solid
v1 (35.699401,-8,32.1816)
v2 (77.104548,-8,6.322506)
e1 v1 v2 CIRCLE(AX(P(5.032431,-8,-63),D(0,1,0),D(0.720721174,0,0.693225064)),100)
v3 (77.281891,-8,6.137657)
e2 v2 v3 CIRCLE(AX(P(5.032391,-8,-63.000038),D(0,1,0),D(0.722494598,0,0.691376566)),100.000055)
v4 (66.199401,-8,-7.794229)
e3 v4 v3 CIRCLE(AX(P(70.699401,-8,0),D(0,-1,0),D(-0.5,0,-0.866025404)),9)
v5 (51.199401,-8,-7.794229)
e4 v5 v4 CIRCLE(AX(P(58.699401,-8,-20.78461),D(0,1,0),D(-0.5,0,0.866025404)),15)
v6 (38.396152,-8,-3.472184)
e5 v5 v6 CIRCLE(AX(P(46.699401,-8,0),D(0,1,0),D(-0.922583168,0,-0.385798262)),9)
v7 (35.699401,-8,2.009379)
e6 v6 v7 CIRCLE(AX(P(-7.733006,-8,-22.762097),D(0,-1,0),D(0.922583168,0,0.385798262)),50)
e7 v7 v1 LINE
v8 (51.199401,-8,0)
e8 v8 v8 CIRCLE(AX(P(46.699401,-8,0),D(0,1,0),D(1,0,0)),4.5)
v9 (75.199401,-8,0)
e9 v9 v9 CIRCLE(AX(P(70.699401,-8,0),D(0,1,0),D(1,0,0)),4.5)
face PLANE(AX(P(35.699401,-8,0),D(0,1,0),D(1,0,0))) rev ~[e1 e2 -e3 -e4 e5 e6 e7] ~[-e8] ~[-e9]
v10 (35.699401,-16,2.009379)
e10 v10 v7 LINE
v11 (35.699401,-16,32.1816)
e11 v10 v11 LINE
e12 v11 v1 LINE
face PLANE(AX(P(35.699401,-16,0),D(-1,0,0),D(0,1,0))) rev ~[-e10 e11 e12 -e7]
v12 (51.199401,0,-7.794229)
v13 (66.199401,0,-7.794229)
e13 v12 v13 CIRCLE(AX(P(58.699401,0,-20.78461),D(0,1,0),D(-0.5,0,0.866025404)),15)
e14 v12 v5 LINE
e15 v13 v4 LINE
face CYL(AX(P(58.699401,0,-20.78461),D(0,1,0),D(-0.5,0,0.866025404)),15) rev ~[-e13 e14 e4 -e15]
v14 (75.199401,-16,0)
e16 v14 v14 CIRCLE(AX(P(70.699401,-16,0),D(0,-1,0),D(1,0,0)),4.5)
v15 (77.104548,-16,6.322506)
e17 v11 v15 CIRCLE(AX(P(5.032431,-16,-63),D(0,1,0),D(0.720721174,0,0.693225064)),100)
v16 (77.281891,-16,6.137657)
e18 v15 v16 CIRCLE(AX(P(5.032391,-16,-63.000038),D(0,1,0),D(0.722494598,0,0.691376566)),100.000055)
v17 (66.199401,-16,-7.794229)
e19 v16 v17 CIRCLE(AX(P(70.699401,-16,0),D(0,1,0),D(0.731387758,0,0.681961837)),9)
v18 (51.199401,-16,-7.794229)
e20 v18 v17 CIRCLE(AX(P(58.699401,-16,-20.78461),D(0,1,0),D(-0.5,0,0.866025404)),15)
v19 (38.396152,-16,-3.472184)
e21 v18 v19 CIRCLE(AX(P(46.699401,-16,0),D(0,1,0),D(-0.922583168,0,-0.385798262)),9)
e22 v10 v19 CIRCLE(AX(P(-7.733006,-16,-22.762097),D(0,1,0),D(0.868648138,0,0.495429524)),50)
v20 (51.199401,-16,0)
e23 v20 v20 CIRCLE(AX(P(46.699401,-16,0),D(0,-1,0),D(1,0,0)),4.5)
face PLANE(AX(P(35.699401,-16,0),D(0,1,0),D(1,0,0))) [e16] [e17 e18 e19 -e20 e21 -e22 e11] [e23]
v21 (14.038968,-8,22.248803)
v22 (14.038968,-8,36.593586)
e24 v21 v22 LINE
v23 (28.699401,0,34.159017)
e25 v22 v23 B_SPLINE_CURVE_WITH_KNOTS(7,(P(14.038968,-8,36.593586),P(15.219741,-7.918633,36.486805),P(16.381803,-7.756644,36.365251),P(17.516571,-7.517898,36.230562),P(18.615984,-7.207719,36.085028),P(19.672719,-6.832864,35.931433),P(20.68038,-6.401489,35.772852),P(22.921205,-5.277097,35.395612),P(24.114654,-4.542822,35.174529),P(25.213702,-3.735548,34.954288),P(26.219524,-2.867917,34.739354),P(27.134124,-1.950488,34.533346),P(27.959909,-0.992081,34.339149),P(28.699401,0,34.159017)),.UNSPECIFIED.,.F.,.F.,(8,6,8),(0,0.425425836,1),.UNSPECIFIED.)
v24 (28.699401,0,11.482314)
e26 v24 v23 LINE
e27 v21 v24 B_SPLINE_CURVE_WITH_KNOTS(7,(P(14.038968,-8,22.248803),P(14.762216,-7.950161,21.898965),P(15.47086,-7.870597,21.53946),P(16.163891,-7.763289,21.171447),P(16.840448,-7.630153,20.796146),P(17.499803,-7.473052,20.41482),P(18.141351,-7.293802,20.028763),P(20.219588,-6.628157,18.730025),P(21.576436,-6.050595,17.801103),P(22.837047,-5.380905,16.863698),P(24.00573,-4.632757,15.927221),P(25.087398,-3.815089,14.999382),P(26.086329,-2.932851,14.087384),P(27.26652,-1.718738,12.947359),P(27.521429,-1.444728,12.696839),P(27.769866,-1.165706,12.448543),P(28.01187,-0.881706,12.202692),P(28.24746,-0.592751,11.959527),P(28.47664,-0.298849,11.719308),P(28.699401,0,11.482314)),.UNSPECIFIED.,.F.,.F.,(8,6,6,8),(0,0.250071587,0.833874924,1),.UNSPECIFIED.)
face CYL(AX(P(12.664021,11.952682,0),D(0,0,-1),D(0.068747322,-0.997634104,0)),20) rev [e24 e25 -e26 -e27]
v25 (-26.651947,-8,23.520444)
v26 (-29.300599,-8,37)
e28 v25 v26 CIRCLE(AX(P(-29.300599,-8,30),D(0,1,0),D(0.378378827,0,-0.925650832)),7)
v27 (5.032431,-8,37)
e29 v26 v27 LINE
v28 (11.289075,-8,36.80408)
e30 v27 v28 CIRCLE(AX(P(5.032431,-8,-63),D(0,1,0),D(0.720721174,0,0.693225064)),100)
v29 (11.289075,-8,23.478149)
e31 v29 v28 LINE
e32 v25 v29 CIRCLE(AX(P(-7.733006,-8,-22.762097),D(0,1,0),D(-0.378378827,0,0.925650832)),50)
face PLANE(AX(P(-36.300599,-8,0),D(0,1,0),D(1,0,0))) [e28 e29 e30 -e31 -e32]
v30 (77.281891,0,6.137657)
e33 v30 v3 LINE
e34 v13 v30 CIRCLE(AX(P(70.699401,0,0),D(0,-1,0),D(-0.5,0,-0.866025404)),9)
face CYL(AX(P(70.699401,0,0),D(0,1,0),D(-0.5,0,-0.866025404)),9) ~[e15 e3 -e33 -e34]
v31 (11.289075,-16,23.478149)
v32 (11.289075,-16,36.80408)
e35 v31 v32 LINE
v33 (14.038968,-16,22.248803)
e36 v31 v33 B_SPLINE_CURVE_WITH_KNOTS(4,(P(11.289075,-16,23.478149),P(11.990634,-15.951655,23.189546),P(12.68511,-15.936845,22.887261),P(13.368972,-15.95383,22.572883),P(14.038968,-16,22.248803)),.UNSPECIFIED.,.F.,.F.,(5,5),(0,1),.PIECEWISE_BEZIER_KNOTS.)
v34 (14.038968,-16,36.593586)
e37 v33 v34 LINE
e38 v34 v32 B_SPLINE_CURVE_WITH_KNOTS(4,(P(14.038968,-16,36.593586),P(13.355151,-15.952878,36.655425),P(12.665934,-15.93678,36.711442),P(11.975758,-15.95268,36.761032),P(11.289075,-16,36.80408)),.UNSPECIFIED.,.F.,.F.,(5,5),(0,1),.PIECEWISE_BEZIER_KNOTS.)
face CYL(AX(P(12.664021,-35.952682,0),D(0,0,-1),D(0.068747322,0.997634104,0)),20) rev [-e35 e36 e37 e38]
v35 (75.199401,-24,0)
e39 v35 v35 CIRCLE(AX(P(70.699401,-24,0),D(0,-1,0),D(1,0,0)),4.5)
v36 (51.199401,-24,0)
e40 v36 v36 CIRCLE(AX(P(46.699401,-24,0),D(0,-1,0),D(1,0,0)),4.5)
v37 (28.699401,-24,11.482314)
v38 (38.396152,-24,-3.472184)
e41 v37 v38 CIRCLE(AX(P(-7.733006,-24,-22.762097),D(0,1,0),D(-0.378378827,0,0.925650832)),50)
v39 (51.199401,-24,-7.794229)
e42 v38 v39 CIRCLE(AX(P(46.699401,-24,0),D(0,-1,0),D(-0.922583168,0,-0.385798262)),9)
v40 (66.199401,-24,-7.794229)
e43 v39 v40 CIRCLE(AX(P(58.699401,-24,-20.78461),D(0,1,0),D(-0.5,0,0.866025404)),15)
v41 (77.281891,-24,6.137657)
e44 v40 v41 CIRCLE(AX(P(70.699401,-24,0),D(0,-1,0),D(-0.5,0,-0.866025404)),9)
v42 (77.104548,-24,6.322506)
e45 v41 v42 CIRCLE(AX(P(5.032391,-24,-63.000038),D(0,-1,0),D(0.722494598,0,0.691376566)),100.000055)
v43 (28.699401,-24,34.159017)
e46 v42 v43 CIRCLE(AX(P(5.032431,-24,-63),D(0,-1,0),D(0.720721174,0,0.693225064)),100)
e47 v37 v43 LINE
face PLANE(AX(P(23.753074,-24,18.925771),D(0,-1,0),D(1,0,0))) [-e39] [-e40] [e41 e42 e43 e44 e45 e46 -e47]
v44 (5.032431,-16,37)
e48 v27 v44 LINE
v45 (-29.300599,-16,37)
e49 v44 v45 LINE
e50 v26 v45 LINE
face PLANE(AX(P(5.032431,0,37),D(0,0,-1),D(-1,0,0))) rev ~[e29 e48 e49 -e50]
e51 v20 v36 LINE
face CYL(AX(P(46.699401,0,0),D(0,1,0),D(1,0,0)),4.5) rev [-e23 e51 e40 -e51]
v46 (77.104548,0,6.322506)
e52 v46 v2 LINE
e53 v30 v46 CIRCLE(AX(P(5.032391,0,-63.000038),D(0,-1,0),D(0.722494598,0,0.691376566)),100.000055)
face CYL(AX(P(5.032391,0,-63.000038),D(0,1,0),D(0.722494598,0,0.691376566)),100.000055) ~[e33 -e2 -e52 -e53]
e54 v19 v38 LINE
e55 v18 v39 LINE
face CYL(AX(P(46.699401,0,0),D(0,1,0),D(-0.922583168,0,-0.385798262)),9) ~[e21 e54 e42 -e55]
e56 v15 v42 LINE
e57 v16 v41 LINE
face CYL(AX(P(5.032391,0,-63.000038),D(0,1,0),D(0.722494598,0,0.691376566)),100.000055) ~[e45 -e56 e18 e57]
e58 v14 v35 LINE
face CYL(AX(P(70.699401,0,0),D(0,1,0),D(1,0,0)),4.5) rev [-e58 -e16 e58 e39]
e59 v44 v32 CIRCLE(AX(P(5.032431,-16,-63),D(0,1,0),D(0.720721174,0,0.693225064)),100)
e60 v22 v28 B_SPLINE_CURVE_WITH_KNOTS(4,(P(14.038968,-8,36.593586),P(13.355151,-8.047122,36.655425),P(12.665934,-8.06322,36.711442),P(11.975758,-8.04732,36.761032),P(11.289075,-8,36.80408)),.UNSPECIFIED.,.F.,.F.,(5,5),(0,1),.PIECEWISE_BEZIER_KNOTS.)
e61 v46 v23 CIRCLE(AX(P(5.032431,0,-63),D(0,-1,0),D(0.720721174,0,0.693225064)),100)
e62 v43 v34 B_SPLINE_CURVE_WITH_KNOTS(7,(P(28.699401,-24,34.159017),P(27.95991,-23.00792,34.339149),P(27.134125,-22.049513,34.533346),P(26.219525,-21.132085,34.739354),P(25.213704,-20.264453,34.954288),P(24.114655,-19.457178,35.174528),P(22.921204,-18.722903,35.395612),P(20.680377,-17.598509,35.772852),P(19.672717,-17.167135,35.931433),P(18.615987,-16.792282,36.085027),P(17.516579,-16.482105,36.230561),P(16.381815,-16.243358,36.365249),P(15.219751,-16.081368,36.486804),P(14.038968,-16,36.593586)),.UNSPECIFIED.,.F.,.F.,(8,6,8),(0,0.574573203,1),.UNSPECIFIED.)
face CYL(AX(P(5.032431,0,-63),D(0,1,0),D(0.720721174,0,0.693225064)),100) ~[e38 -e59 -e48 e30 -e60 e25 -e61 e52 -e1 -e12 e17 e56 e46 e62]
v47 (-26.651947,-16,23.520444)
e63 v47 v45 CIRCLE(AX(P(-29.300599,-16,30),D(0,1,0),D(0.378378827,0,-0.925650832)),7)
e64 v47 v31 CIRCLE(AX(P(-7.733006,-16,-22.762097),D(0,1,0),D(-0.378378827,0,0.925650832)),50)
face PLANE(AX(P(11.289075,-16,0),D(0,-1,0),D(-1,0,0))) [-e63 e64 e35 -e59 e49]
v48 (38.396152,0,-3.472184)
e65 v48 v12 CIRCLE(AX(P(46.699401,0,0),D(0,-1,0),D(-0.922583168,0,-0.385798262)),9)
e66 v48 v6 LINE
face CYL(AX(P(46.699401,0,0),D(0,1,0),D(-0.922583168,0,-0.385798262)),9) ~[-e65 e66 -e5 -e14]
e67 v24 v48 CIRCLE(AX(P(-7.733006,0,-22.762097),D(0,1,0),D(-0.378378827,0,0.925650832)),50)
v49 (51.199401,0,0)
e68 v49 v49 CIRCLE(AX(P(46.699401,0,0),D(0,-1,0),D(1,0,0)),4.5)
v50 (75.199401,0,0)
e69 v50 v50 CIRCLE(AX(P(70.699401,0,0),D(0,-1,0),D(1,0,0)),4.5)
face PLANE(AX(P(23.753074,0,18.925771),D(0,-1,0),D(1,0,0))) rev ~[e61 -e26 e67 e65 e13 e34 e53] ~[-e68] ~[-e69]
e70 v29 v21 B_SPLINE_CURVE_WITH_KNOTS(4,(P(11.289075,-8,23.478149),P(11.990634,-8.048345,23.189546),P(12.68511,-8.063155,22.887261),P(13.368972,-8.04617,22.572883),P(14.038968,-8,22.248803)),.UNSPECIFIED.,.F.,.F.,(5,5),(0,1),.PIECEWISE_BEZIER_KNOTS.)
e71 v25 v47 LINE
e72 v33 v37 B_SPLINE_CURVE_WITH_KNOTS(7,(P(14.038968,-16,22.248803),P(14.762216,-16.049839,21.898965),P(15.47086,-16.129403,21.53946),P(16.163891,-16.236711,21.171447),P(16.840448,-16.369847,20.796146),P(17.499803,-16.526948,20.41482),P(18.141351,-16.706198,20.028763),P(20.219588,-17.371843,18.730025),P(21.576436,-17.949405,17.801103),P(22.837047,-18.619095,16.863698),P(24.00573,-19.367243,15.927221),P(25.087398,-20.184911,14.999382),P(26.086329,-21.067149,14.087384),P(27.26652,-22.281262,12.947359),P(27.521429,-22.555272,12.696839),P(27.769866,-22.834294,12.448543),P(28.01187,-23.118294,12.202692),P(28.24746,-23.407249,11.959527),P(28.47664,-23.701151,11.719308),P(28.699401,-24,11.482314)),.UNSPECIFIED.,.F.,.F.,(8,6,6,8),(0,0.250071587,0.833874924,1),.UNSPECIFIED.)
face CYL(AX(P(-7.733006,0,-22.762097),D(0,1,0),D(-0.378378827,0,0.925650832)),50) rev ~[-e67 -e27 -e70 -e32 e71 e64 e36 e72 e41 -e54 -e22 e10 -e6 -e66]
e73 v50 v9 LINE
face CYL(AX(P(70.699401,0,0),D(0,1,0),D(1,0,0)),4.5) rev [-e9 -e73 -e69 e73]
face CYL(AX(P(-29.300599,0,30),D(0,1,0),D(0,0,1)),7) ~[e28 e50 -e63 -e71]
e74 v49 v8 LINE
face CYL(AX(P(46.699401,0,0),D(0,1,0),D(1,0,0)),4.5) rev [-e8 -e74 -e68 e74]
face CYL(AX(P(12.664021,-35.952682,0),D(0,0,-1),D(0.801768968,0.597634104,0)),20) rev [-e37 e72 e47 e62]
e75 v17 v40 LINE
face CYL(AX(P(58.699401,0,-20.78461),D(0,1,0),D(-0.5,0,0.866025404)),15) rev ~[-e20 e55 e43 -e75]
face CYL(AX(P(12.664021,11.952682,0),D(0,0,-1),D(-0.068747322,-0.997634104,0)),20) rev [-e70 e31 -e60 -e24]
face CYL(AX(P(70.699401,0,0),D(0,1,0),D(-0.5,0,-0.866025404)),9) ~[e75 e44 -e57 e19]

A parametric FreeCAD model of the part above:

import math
import FreeCAD as App
import Part
import Sketcher
Q = App.Units.Quantity


def add_polygon(sketch, points):
    """Adds a closed chain of lines whose ends are joined by coincident constraints."""
    first, n = sketch.GeometryCount, len(points)
    for a, b in zip(points, points[1:] + points[:1]):
        sketch.addGeometry(Part.LineSegment(App.Vector(*a, 0), App.Vector(*b, 0)), False)
    for i in range(n):
        sketch.addConstraint(Sketcher.Constraint("Coincident", first + i, 2, first + (i + 1) % n, 1))

doc = App.newDocument("Part")
params = doc.addObject("Spreadsheet::Sheet", "Params")
for row, (alias, value) in enumerate([
    ("sketch1_diameter", "9 mm"),
    ("sketch1_radius", "7 mm"),
    ("sketch1_radius2", "50 mm"),
    ("sketch1_radius3", "9 mm"),
    ("sketch1_radius4", "15 mm"),
    ("pad1_length", "24 mm"),
    ("sketch2_radius", "20 mm"),
    ("sketch2_width", "65 mm"),
    ("sketch2_width2", "44 mm"),
    ("sketch2_height", "8 mm"),
], start=1):
    params.set(f"A{row}", alias)
    params.set(f"B{row}", "=" + value)
    params.setAlias(f"B{row}", alias)

body = doc.addObject("PartDesign::Body", "Body")

# Sketch on XZ plane
sketch1 = body.newObject("Sketcher::SketchObject", "Sketch")
sketch1.AttachmentSupport = (doc.getObject("XZ_Plane"), [""])
sketch1.MapMode = "FlatFace"
sketch1.addGeometry([
    Part.LineSegment(App.Vector(5.032431, 37, 0), App.Vector(-29.300599, 37, 0)),  # 0
    Part.ArcOfCircle(Part.Circle(App.Vector(-29.300599, 30, 0), App.Vector(0, 0, 1), 7), math.radians(90), math.radians(292.2333)),  # 1
    Part.ArcOfCircle(Part.Circle(App.Vector(-7.733006, -22.762097, 0), App.Vector(0, 0, 1), 50), math.radians(22.693306), math.radians(112.2333)),  # 2
    Part.ArcOfCircle(Part.Circle(App.Vector(46.699401, 0, 0), App.Vector(0, 0, 1), 9), math.radians(-157.306694), math.radians(-60)),  # 3
    Part.ArcOfCircle(Part.Circle(App.Vector(58.699401, -20.78461, 0), App.Vector(0, 0, 1), 15), math.radians(60), math.radians(120)),  # 4
    Part.ArcOfCircle(Part.Circle(App.Vector(70.699401, 0, 0), App.Vector(0, 0, 1), 9), math.radians(-120), math.radians(42.997139)),  # 5
    Part.ArcOfCircle(Part.Circle(App.Vector(5.032391, -63.000038, 0), App.Vector(0, 0, 1), 100.000055), math.radians(43.739175), math.radians(43.885946)),  # 6
    Part.ArcOfCircle(Part.Circle(App.Vector(5.032431, -63, 0), App.Vector(0, 0, 1), 100), math.radians(43.885946), math.radians(90)),  # 7
    Part.Circle(App.Vector(46.699401, 0, 0), App.Vector(0, 0, 1), 4.5),  # 8
    Part.Circle(App.Vector(70.699401, 0, 0), App.Vector(0, 0, 1), 4.5),  # 9
], False)
sketch1.addConstraint([
    Sketcher.Constraint("Tangent", 0, 2, 1, 1),
    Sketcher.Constraint("Tangent", 1, 2, 2, 2),
    Sketcher.Constraint("Tangent", 2, 1, 3, 1),
    Sketcher.Constraint("Tangent", 3, 2, 4, 2),
    Sketcher.Constraint("Tangent", 4, 1, 5, 1),
    Sketcher.Constraint("Coincident", 5, 2, 6, 1),
    Sketcher.Constraint("Tangent", 6, 2, 7, 1),
    Sketcher.Constraint("Tangent", 7, 2, 0, 1),
    Sketcher.Constraint("Horizontal", 0),
    Sketcher.Constraint("Coincident", 8, 3, 3, 3),
    Sketcher.Constraint("Coincident", 9, 3, 5, 3),
    Sketcher.Constraint("Equal", 3, 5),
    Sketcher.Constraint("Equal", 8, 9),
    Sketcher.Constraint("PointOnObject", 3, 3, -1),
    Sketcher.Constraint("PointOnObject", 5, 3, -1),
    Sketcher.Constraint("Diameter", 8, Q("9 mm")),
    Sketcher.Constraint("Radius", 1, Q("7 mm")),
    Sketcher.Constraint("Radius", 2, Q("50 mm")),
    Sketcher.Constraint("Radius", 3, Q("9 mm")),
    Sketcher.Constraint("Radius", 4, Q("15 mm")),
    Sketcher.Constraint("Radius", 7, Q("100 mm")),
    Sketcher.Constraint("DistanceY", -1, 1, 1, 3, Q("30 mm")),
    Sketcher.Constraint("DistanceX", 1, 3, 3, 3, Q("76 mm")),
    Sketcher.Constraint("DistanceX", 3, 3, 4, 3, Q("12 mm")),
    Sketcher.Constraint("Radius", 6, Q("100.000055 mm")),
    Sketcher.Constraint("DistanceX", 0, 2, 0, 1, Q("34.33303 mm")),
    Sketcher.Constraint("DistanceX", 1, 3, -1, 1, Q("29.300599 mm")),
    Sketcher.Constraint("DistanceX", -1, 1, 6, 2, Q("77.104548 mm")),
])
sketch1.setExpression("Constraints[15]", "Params.sketch1_diameter")
sketch1.setExpression("Constraints[16]", "Params.sketch1_radius")
sketch1.setExpression("Constraints[17]", "Params.sketch1_radius2")
sketch1.setExpression("Constraints[18]", "Params.sketch1_radius3")
sketch1.setExpression("Constraints[19]", "Params.sketch1_radius4")
pad1 = body.newObject("PartDesign::Pad", "Pad")
pad1.Profile = sketch1
pad1.setExpression("Length", "Params.pad1_length")

# Sketch on XY plane
sketch2 = body.newObject("Sketcher::SketchObject", "Sketch001")
sketch2.AttachmentSupport = (doc.getObject("XY_Plane"), [""])
sketch2.MapMode = "FlatFace"
sketch2.addGeometry(Part.LineSegment(App.Vector(-36.300599, 0, 0), App.Vector(-36.300599, -8, 0)), False)  # 0
sketch2.addGeometry(Part.LineSegment(App.Vector(-36.300599, -8, 0), App.Vector(11.289075, -8, 0)), False)  # 1
sketch2.addGeometry(Part.ArcOfCircle(Part.Circle(App.Vector(12.664021, 11.952682, 0), App.Vector(0, 0, 1), 20), math.radians(-93.942041), math.radians(-86.057959)), False)  # 2
sketch2.addGeometry(Part.ArcOfCircle(Part.Circle(App.Vector(12.664021, 11.952682, 0), App.Vector(0, 0, 1), 20), math.radians(-86.057959), math.radians(-36.70064)), False)  # 3
sketch2.addGeometry(Part.LineSegment(App.Vector(28.699401, 0, 0), App.Vector(-36.300599, 0, 0)), False)  # 4
sketch2.addGeometry(Part.LineSegment(App.Vector(-36.300599, -16, 0), App.Vector(-36.300599, -24, 0)), False)  # 5
sketch2.addGeometry(Part.LineSegment(App.Vector(-36.300599, -24, 0), App.Vector(28.699401, -24, 0)), False)  # 6
sketch2.addGeometry(Part.ArcOfCircle(Part.Circle(App.Vector(12.664021, -35.952682, 0), App.Vector(0, 0, 1), 20), math.radians(36.70064), math.radians(86.057959)), False)  # 7
sketch2.addGeometry(Part.ArcOfCircle(Part.Circle(App.Vector(12.664021, -35.952682, 0), App.Vector(0, 0, 1), 20), math.radians(86.057959), math.radians(93.942041)), False)  # 8
sketch2.addGeometry(Part.LineSegment(App.Vector(11.289075, -16, 0), App.Vector(-36.300599, -16, 0)), False)  # 9
add_polygon(sketch2, [(35.699401, -8), (35.699401, -16), (79.699401, -16), (79.699401, -8)])  # lines 10-13
sketch2.addConstraint([
    Sketcher.Constraint("Coincident", 0, 2, 1, 1),
    Sketcher.Constraint("Coincident", 1, 2, 2, 1),
    Sketcher.Constraint("Tangent", 2, 2, 3, 1),
    Sketcher.Constraint("Coincident", 3, 2, 4, 1),
    Sketcher.Constraint("Coincident", 4, 2, 0, 1),
    Sketcher.Constraint("Coincident", 5, 2, 6, 1),
    Sketcher.Constraint("Coincident", 6, 2, 7, 1),
    Sketcher.Constraint("Tangent", 7, 2, 8, 1),
    Sketcher.Constraint("Coincident", 8, 2, 9, 1),
    Sketcher.Constraint("Coincident", 9, 2, 5, 1),
    Sketcher.Constraint("Vertical", 0),
    Sketcher.Constraint("Horizontal", 1),
    Sketcher.Constraint("Horizontal", 4),
    Sketcher.Constraint("Vertical", 5),
    Sketcher.Constraint("Horizontal", 6),
    Sketcher.Constraint("Horizontal", 9),
    Sketcher.Constraint("Vertical", 10),
    Sketcher.Constraint("Horizontal", 11),
    Sketcher.Constraint("Vertical", 12),
    Sketcher.Constraint("Horizontal", 13),
    Sketcher.Constraint("Equal", 2, 3),
    Sketcher.Constraint("Equal", 3, 7),
    Sketcher.Constraint("Equal", 7, 8),
    Sketcher.Constraint("PointOnObject", 3, 2, -1),
    Sketcher.Constraint("Horizontal", 1, 2, 2, 2),
    Sketcher.Constraint("Horizontal", 7, 2, 8, 2),
    Sketcher.Constraint("Horizontal", 9, 2, 10, 2),
    Sketcher.Constraint("Horizontal", 2, 2, 12, 2),
    Sketcher.Constraint("Vertical", 3, 3, 7, 3),
    Sketcher.Constraint("Vertical", 4, 2, 5, 2),
    Sketcher.Constraint("Vertical", 3, 2, 6, 2),
    Sketcher.Constraint("Vertical", 2, 2, 7, 2),
    Sketcher.Constraint("Equal", 5, 10),
    Sketcher.Constraint("Radius", 2, Q("20 mm")),
    Sketcher.Constraint("DistanceX", 4, 2, 4, 1, Q("65 mm")),
    Sketcher.Constraint("DistanceX", 11, 1, 11, 2, Q("44 mm")),
    Sketcher.Constraint("DistanceY", 0, 2, 0, 1, Q("8 mm")),
    Sketcher.Constraint("DistanceX", 6, 2, 10, 2, Q("7 mm")),
    Sketcher.Constraint("DistanceX", 0, 2, -1, 1, Q("36.300599 mm")),
    Sketcher.Constraint("DistanceX", 1, 1, 1, 2, Q("47.589674 mm")),
])
sketch2.setExpression("Constraints[37]", "Params.sketch2_radius")
sketch2.setExpression("Constraints[38]", "Params.sketch2_width")
sketch2.setExpression("Constraints[39]", "Params.sketch2_width2")
sketch2.setExpression("Constraints[40]", "Params.sketch2_height")
pocket1 = body.newObject("PartDesign::Pocket", "Pocket")
pocket1.Profile = sketch2
pocket1.Type = "ThroughAll"
pocket1.Midplane = True

doc.recompute()
